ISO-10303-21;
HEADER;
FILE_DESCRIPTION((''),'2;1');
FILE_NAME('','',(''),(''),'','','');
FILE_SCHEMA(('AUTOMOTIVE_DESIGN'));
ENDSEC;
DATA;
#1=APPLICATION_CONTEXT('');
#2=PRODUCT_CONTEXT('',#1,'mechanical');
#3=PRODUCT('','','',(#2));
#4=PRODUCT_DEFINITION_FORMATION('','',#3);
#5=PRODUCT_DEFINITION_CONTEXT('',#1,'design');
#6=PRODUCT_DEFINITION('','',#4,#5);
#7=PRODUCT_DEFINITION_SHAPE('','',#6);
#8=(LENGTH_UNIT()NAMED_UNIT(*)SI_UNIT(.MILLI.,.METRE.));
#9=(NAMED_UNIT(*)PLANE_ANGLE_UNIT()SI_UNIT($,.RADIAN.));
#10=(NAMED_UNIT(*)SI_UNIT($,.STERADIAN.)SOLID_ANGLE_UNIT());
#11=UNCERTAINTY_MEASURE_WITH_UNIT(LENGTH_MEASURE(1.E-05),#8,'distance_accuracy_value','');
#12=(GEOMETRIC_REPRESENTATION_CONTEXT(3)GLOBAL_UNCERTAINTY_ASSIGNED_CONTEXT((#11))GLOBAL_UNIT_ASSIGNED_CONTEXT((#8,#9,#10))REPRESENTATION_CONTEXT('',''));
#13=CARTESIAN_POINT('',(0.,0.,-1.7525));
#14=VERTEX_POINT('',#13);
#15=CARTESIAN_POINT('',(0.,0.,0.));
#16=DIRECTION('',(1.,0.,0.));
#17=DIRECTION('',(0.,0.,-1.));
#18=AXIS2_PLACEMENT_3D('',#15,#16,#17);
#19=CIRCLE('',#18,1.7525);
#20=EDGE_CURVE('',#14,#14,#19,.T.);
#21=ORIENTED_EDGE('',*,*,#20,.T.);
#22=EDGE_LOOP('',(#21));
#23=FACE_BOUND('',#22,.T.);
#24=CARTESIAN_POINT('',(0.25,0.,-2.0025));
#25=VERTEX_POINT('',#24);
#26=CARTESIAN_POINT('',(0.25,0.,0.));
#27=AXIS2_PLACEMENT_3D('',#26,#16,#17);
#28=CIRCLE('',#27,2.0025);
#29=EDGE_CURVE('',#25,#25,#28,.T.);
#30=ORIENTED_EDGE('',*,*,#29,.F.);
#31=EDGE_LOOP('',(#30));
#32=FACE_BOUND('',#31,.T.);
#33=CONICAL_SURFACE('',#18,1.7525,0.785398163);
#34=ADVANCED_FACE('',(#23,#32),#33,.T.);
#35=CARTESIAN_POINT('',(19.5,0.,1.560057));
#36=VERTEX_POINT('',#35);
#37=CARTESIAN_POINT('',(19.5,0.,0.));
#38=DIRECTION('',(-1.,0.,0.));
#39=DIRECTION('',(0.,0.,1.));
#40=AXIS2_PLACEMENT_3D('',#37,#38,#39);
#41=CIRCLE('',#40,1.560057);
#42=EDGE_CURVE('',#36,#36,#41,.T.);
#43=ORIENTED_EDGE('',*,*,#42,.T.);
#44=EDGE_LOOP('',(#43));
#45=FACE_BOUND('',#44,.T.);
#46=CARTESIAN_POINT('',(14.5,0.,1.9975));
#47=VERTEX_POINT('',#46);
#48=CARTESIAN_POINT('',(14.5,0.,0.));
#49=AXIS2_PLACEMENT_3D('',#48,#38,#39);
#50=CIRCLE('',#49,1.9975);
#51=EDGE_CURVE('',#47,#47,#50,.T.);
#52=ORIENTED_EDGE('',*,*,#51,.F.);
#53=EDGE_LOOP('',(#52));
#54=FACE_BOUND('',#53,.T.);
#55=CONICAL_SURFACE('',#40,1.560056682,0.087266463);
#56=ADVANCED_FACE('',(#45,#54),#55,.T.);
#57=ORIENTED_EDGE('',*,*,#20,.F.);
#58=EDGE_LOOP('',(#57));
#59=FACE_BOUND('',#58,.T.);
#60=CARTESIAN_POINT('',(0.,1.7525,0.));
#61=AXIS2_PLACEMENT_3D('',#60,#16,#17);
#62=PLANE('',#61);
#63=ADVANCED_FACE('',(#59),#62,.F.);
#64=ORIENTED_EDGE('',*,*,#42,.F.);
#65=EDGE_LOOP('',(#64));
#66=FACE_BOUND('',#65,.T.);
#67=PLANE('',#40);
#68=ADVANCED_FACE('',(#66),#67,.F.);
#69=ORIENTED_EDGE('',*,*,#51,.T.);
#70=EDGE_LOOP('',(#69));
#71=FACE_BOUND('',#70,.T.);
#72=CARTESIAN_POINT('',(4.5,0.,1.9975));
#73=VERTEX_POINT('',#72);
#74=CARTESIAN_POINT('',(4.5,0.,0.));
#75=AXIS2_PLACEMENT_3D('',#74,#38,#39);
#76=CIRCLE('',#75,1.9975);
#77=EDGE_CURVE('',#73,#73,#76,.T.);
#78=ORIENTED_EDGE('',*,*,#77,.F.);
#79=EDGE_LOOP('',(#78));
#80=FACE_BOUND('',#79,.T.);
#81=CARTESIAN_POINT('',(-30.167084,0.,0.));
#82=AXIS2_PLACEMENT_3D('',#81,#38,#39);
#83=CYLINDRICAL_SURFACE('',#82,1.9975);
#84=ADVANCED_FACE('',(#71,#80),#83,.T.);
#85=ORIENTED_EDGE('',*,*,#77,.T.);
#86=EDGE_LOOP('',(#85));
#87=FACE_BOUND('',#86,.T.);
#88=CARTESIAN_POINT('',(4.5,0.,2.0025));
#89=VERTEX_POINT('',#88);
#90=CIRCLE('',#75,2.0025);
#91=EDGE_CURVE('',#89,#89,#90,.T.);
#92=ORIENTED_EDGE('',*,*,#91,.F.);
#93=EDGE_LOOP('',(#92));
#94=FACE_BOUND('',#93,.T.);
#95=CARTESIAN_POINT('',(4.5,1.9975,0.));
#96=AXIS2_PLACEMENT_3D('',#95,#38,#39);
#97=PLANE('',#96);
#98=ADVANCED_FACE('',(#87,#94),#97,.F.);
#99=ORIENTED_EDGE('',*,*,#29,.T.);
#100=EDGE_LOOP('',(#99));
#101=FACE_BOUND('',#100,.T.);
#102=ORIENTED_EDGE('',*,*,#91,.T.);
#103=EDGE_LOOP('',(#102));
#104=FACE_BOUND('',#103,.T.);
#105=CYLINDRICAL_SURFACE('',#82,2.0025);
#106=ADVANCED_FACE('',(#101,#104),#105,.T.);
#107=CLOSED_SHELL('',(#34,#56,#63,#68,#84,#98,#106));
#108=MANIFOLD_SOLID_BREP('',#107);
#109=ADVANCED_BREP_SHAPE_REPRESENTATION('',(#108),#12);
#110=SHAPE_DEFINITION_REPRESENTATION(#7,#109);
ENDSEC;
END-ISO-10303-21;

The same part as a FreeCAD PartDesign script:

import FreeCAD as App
import Part
import Sketcher
Q = App.Units.Quantity


def edges_at(feature, points):
    """Names of the edges that pass closest to the given points."""
    edges = feature.Shape.Edges
    near = lambda p: min(range(len(edges)), key=lambda i: edges[i].distToShape(Part.Vertex(*p))[0])
    return sorted({f"Edge{near(p) + 1}" for p in points})

doc = App.newDocument("Part")
body = doc.addObject("PartDesign::Body", "Body")

# Sketch on XY plane
sketch1 = doc.addObject("Sketcher::SketchObject", "Sketch")
body.addObject(sketch1)
sketch1.AttachmentSupport = (doc.XY_Plane, [""])
sketch1.MapMode = "FlatFace"
sketch1.addGeometry(Part.LineSegment(App.Vector(0, 2.0025, 0), App.Vector(0, 3.5, 0)), False)
sketch1.addGeometry(Part.LineSegment(App.Vector(0, 3.5, 0), App.Vector(-1, 3.5, 0)), False)
sketch1.addGeometry(Part.LineSegment(App.Vector(-1, 3.5, 0), App.Vector(-1, 0, 0)), False)
sketch1.addGeometry(Part.LineSegment(App.Vector(-1, 0, 0), App.Vector(19.5, 0, 0)), False)
sketch1.addGeometry(Part.LineSegment(App.Vector(19.5, 0, 0), App.Vector(19.5, 1.5601, 0)), False)
sketch1.addGeometry(Part.LineSegment(App.Vector(19.5, 1.5601, 0), App.Vector(14.5, 1.9975, 0)), False)
sketch1.addGeometry(Part.LineSegment(App.Vector(14.5, 1.9975, 0), App.Vector(4.5, 1.9975, 0)), False)
sketch1.addGeometry(Part.LineSegment(App.Vector(4.5, 1.9975, 0), App.Vector(4.5, 2.0025, 0)), False)
sketch1.addGeometry(Part.LineSegment(App.Vector(4.5, 2.0025, 0), App.Vector(0, 2.0025, 0)), False)
sketch1.addConstraint(Sketcher.Constraint("Coincident", 0, 2, 1, 1))
sketch1.addConstraint(Sketcher.Constraint("Coincident", 1, 2, 2, 1))
sketch1.addConstraint(Sketcher.Constraint("Coincident", 2, 2, 3, 1))
sketch1.addConstraint(Sketcher.Constraint("Coincident", 3, 2, 4, 1))
sketch1.addConstraint(Sketcher.Constraint("Coincident", 4, 2, 5, 1))
sketch1.addConstraint(Sketcher.Constraint("Coincident", 5, 2, 6, 1))
sketch1.addConstraint(Sketcher.Constraint("Coincident", 6, 2, 7, 1))
sketch1.addConstraint(Sketcher.Constraint("Coincident", 7, 2, 8, 1))
sketch1.addConstraint(Sketcher.Constraint("Coincident", 8, 2, 0, 1))
sketch1.addConstraint(Sketcher.Constraint("Vertical", 0))
sketch1.addConstraint(Sketcher.Constraint("Horizontal", 1))
sketch1.addConstraint(Sketcher.Constraint("Vertical", 2))
sketch1.addConstraint(Sketcher.Constraint("Horizontal", 3))
sketch1.addConstraint(Sketcher.Constraint("Vertical", 4))
sketch1.addConstraint(Sketcher.Constraint("Horizontal", 6))
sketch1.addConstraint(Sketcher.Constraint("Vertical", 7))
sketch1.addConstraint(Sketcher.Constraint("Horizontal", 8))
sketch1.addConstraint(Sketcher.Constraint("PointOnObject", 0, 2, -2))
sketch1.addConstraint(Sketcher.Constraint("PointOnObject", 2, 2, -1))
sketch1.addConstraint(Sketcher.Constraint("DistanceX", 1, 2, 1, 1, Q("1 mm")))
sketch1.addConstraint(Sketcher.Constraint("DistanceX", 6, 2, 6, 1, Q("10 mm")))
sketch1.addConstraint(Sketcher.Constraint("Angle", 5, Q("175 deg")))
sketch1.addConstraint(Sketcher.Constraint("DistanceX", 3, 1, 3, 2, Q("20.5 mm")))
sketch1.addConstraint(Sketcher.Constraint("DistanceX", 8, 2, 8, 1, Q("4.5 mm")))
sketch1.addConstraint(Sketcher.Constraint("DistanceY", 2, 2, 2, 1, Q("3.5 mm")))
sketch1.addConstraint(Sketcher.Constraint("DistanceY", 7, 1, 7, 2, Q("0.005 mm")))
sketch1.addConstraint(Sketcher.Constraint("DistanceY", 0, 1, 0, 2, Q("1.4975 mm")))
revolution = doc.addObject("PartDesign::Revolution", "Revolution")
body.addObject(revolution)
revolution.Profile = sketch1
revolution.ReferenceAxis = (sketch1, ["H_Axis"])
revolution.Angle = 360
doc.recompute()

fillet = doc.addObject("PartDesign::Fillet", "Fillet")
body.addObject(fillet)
fillet.Base = (revolution, edges_at(revolution, [(0, 0, -2.002)]))
fillet.Radius = 0.25

# Sketch on XY plane
sketch2 = doc.addObject("Sketcher::SketchObject", "Sketch001")
body.addObject(sketch2)
sketch2.AttachmentSupport = (doc.XY_Plane, [""])
sketch2.MapMode = "FlatFace"
sketch2.addGeometry(Part.LineSegment(App.Vector(0, 1.75, 0), App.Vector(0.25, 2, 0)), False)
sketch2.addGeometry(Part.LineSegment(App.Vector(0.25, 2, 0), App.Vector(0, 3.5, 0)), False)
sketch2.addGeometry(Part.LineSegment(App.Vector(0, 3.5, 0), App.Vector(-1, 3.5, 0)), False)
sketch2.addGeometry(Part.LineSegment(App.Vector(-1, 3.5, 0), App.Vector(-1, 0, 0)), False)
sketch2.addGeometry(Part.LineSegment(App.Vector(-1, 0, 0), App.Vector(0, 0, 0)), False)
sketch2.addGeometry(Part.LineSegment(App.Vector(0, 0, 0), App.Vector(0, 1.75, 0)), False)
sketch2.addConstraint(Sketcher.Constraint("Coincident", 0, 2, 1, 1))
sketch2.addConstraint(Sketcher.Constraint("Coincident", 1, 2, 2, 1))
sketch2.addConstraint(Sketcher.Constraint("Coincident", 2, 2, 3, 1))
sketch2.addConstraint(Sketcher.Constraint("Coincident", 3, 2, 4, 1))
sketch2.addConstraint(Sketcher.Constraint("Coincident", 4, 2, 5, 1))
sketch2.addConstraint(Sketcher.Constraint("Coincident", 5, 2, 0, 1))
sketch2.addConstraint(Sketcher.Constraint("Horizontal", 2))
sketch2.addConstraint(Sketcher.Constraint("Vertical", 3))
sketch2.addConstraint(Sketcher.Constraint("Horizontal", 4))
sketch2.addConstraint(Sketcher.Constraint("Vertical", 5))
sketch2.addConstraint(Sketcher.Constraint("Coincident", 4, 2, -1, 1))
sketch2.addConstraint(Sketcher.Constraint("PointOnObject", 1, 2, -2))
sketch2.addConstraint(Sketcher.Constraint("DistanceX", 2, 2, 2, 1, Q("1 mm")))
sketch2.addConstraint(Sketcher.Constraint("Angle", 0, Q("45 deg")))
sketch2.addConstraint(Sketcher.Constraint("DistanceY", 3, 2, 3, 1, Q("3.5 mm")))
sketch2.addConstraint(Sketcher.Constraint("DistanceX", -1, 1, 0, 2, Q("0.25 mm")))
sketch2.addConstraint(Sketcher.Constraint("DistanceY", 5, 1, 5, 2, Q("1.7525 mm")))
groove = doc.addObject("PartDesign::Groove", "Groove")
body.addObject(groove)
groove.Profile = sketch2
groove.ReferenceAxis = (sketch2, ["H_Axis"])
groove.Angle = 360

doc.recompute()
